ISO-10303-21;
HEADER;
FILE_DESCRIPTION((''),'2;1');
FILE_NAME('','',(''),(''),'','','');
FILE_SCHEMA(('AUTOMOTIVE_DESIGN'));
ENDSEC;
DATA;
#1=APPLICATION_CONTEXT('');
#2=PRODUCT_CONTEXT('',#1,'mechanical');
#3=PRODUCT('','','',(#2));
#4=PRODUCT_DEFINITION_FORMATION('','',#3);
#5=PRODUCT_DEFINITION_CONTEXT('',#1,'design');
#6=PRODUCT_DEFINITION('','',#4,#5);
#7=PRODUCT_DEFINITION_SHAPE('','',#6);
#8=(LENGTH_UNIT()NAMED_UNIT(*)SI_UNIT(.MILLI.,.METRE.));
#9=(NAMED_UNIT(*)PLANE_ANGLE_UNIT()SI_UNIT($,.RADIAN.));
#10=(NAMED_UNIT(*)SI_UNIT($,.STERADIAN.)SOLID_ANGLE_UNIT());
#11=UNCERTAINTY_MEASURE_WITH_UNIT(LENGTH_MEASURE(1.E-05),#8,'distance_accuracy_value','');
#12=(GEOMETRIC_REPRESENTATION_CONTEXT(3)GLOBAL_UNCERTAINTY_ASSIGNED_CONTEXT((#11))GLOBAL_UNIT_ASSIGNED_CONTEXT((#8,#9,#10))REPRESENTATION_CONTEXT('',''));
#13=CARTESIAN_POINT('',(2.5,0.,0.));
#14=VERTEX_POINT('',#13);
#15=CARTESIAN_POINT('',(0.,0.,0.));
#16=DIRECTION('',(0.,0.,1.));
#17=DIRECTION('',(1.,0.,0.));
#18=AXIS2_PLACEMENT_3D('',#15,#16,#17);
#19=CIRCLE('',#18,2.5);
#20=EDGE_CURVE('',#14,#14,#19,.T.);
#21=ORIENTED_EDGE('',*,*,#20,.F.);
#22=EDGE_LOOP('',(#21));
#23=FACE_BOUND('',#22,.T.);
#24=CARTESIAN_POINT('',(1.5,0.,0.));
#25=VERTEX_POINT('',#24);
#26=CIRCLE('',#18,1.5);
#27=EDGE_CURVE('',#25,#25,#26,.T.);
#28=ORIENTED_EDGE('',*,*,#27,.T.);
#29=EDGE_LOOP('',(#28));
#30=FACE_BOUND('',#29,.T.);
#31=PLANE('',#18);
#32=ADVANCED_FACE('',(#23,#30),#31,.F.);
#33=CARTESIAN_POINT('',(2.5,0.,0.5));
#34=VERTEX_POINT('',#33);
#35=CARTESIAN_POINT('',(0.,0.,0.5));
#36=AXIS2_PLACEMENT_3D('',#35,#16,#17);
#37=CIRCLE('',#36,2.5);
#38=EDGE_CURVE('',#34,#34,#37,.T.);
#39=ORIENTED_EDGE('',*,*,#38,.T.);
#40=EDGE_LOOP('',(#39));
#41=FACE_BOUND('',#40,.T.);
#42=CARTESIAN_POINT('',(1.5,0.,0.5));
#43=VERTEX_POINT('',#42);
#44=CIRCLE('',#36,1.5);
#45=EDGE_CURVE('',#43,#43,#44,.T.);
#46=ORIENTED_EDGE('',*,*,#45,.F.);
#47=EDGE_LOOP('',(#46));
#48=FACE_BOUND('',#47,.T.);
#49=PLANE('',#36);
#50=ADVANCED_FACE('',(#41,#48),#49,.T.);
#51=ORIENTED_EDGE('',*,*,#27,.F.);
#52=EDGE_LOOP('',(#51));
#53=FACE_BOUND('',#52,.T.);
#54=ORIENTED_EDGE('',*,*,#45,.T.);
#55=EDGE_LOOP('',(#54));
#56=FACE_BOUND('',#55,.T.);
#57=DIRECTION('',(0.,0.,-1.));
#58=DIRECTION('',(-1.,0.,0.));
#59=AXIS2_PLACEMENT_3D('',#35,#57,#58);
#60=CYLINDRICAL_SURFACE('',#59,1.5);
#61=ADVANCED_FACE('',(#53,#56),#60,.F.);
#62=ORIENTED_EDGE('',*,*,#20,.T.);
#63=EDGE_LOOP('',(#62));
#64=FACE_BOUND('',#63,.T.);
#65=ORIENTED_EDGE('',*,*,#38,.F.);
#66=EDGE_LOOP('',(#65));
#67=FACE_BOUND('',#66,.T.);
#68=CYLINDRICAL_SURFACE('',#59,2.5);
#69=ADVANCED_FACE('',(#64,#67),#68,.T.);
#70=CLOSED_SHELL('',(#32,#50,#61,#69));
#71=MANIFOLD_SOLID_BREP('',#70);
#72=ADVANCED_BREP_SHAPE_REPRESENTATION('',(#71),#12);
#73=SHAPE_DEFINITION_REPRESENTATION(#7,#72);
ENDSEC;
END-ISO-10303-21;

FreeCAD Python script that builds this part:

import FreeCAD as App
import Part
import Sketcher

V = App.Vector

doc = App.newDocument("Part")
body = doc.addObject("PartDesign::Body", "Body")

sketch1 = doc.addObject("Sketcher::SketchObject", "Sketch")
body.addObject(sketch1)
sketch1.AttachmentSupport = (doc.XY_Plane, [""])
sketch1.MapMode = "FlatFace"
sketch1.addGeometry(Part.Circle(V(0, 0, 0), V(0, 0, 1), 2.5), False)
sketch1.addGeometry(Part.Circle(V(0, 0, 0), V(0, 0, 1), 1.5), False)
sketch1.addConstraint(Sketcher.Constraint("Coincident", 0, 3, -1, 1))
sketch1.addConstraint(Sketcher.Constraint("Coincident", 1, 3, -1, 1))
sketch1.addConstraint(Sketcher.Constraint("Diameter", 0, 5.0))
sketch1.addConstraint(Sketcher.Constraint("Diameter", 1, 3.0))
pad1 = doc.addObject("PartDesign::Pad", "Pad")
body.addObject(pad1)
pad1.Profile = sketch1
pad1.Length = 0.5

doc.recompute()
